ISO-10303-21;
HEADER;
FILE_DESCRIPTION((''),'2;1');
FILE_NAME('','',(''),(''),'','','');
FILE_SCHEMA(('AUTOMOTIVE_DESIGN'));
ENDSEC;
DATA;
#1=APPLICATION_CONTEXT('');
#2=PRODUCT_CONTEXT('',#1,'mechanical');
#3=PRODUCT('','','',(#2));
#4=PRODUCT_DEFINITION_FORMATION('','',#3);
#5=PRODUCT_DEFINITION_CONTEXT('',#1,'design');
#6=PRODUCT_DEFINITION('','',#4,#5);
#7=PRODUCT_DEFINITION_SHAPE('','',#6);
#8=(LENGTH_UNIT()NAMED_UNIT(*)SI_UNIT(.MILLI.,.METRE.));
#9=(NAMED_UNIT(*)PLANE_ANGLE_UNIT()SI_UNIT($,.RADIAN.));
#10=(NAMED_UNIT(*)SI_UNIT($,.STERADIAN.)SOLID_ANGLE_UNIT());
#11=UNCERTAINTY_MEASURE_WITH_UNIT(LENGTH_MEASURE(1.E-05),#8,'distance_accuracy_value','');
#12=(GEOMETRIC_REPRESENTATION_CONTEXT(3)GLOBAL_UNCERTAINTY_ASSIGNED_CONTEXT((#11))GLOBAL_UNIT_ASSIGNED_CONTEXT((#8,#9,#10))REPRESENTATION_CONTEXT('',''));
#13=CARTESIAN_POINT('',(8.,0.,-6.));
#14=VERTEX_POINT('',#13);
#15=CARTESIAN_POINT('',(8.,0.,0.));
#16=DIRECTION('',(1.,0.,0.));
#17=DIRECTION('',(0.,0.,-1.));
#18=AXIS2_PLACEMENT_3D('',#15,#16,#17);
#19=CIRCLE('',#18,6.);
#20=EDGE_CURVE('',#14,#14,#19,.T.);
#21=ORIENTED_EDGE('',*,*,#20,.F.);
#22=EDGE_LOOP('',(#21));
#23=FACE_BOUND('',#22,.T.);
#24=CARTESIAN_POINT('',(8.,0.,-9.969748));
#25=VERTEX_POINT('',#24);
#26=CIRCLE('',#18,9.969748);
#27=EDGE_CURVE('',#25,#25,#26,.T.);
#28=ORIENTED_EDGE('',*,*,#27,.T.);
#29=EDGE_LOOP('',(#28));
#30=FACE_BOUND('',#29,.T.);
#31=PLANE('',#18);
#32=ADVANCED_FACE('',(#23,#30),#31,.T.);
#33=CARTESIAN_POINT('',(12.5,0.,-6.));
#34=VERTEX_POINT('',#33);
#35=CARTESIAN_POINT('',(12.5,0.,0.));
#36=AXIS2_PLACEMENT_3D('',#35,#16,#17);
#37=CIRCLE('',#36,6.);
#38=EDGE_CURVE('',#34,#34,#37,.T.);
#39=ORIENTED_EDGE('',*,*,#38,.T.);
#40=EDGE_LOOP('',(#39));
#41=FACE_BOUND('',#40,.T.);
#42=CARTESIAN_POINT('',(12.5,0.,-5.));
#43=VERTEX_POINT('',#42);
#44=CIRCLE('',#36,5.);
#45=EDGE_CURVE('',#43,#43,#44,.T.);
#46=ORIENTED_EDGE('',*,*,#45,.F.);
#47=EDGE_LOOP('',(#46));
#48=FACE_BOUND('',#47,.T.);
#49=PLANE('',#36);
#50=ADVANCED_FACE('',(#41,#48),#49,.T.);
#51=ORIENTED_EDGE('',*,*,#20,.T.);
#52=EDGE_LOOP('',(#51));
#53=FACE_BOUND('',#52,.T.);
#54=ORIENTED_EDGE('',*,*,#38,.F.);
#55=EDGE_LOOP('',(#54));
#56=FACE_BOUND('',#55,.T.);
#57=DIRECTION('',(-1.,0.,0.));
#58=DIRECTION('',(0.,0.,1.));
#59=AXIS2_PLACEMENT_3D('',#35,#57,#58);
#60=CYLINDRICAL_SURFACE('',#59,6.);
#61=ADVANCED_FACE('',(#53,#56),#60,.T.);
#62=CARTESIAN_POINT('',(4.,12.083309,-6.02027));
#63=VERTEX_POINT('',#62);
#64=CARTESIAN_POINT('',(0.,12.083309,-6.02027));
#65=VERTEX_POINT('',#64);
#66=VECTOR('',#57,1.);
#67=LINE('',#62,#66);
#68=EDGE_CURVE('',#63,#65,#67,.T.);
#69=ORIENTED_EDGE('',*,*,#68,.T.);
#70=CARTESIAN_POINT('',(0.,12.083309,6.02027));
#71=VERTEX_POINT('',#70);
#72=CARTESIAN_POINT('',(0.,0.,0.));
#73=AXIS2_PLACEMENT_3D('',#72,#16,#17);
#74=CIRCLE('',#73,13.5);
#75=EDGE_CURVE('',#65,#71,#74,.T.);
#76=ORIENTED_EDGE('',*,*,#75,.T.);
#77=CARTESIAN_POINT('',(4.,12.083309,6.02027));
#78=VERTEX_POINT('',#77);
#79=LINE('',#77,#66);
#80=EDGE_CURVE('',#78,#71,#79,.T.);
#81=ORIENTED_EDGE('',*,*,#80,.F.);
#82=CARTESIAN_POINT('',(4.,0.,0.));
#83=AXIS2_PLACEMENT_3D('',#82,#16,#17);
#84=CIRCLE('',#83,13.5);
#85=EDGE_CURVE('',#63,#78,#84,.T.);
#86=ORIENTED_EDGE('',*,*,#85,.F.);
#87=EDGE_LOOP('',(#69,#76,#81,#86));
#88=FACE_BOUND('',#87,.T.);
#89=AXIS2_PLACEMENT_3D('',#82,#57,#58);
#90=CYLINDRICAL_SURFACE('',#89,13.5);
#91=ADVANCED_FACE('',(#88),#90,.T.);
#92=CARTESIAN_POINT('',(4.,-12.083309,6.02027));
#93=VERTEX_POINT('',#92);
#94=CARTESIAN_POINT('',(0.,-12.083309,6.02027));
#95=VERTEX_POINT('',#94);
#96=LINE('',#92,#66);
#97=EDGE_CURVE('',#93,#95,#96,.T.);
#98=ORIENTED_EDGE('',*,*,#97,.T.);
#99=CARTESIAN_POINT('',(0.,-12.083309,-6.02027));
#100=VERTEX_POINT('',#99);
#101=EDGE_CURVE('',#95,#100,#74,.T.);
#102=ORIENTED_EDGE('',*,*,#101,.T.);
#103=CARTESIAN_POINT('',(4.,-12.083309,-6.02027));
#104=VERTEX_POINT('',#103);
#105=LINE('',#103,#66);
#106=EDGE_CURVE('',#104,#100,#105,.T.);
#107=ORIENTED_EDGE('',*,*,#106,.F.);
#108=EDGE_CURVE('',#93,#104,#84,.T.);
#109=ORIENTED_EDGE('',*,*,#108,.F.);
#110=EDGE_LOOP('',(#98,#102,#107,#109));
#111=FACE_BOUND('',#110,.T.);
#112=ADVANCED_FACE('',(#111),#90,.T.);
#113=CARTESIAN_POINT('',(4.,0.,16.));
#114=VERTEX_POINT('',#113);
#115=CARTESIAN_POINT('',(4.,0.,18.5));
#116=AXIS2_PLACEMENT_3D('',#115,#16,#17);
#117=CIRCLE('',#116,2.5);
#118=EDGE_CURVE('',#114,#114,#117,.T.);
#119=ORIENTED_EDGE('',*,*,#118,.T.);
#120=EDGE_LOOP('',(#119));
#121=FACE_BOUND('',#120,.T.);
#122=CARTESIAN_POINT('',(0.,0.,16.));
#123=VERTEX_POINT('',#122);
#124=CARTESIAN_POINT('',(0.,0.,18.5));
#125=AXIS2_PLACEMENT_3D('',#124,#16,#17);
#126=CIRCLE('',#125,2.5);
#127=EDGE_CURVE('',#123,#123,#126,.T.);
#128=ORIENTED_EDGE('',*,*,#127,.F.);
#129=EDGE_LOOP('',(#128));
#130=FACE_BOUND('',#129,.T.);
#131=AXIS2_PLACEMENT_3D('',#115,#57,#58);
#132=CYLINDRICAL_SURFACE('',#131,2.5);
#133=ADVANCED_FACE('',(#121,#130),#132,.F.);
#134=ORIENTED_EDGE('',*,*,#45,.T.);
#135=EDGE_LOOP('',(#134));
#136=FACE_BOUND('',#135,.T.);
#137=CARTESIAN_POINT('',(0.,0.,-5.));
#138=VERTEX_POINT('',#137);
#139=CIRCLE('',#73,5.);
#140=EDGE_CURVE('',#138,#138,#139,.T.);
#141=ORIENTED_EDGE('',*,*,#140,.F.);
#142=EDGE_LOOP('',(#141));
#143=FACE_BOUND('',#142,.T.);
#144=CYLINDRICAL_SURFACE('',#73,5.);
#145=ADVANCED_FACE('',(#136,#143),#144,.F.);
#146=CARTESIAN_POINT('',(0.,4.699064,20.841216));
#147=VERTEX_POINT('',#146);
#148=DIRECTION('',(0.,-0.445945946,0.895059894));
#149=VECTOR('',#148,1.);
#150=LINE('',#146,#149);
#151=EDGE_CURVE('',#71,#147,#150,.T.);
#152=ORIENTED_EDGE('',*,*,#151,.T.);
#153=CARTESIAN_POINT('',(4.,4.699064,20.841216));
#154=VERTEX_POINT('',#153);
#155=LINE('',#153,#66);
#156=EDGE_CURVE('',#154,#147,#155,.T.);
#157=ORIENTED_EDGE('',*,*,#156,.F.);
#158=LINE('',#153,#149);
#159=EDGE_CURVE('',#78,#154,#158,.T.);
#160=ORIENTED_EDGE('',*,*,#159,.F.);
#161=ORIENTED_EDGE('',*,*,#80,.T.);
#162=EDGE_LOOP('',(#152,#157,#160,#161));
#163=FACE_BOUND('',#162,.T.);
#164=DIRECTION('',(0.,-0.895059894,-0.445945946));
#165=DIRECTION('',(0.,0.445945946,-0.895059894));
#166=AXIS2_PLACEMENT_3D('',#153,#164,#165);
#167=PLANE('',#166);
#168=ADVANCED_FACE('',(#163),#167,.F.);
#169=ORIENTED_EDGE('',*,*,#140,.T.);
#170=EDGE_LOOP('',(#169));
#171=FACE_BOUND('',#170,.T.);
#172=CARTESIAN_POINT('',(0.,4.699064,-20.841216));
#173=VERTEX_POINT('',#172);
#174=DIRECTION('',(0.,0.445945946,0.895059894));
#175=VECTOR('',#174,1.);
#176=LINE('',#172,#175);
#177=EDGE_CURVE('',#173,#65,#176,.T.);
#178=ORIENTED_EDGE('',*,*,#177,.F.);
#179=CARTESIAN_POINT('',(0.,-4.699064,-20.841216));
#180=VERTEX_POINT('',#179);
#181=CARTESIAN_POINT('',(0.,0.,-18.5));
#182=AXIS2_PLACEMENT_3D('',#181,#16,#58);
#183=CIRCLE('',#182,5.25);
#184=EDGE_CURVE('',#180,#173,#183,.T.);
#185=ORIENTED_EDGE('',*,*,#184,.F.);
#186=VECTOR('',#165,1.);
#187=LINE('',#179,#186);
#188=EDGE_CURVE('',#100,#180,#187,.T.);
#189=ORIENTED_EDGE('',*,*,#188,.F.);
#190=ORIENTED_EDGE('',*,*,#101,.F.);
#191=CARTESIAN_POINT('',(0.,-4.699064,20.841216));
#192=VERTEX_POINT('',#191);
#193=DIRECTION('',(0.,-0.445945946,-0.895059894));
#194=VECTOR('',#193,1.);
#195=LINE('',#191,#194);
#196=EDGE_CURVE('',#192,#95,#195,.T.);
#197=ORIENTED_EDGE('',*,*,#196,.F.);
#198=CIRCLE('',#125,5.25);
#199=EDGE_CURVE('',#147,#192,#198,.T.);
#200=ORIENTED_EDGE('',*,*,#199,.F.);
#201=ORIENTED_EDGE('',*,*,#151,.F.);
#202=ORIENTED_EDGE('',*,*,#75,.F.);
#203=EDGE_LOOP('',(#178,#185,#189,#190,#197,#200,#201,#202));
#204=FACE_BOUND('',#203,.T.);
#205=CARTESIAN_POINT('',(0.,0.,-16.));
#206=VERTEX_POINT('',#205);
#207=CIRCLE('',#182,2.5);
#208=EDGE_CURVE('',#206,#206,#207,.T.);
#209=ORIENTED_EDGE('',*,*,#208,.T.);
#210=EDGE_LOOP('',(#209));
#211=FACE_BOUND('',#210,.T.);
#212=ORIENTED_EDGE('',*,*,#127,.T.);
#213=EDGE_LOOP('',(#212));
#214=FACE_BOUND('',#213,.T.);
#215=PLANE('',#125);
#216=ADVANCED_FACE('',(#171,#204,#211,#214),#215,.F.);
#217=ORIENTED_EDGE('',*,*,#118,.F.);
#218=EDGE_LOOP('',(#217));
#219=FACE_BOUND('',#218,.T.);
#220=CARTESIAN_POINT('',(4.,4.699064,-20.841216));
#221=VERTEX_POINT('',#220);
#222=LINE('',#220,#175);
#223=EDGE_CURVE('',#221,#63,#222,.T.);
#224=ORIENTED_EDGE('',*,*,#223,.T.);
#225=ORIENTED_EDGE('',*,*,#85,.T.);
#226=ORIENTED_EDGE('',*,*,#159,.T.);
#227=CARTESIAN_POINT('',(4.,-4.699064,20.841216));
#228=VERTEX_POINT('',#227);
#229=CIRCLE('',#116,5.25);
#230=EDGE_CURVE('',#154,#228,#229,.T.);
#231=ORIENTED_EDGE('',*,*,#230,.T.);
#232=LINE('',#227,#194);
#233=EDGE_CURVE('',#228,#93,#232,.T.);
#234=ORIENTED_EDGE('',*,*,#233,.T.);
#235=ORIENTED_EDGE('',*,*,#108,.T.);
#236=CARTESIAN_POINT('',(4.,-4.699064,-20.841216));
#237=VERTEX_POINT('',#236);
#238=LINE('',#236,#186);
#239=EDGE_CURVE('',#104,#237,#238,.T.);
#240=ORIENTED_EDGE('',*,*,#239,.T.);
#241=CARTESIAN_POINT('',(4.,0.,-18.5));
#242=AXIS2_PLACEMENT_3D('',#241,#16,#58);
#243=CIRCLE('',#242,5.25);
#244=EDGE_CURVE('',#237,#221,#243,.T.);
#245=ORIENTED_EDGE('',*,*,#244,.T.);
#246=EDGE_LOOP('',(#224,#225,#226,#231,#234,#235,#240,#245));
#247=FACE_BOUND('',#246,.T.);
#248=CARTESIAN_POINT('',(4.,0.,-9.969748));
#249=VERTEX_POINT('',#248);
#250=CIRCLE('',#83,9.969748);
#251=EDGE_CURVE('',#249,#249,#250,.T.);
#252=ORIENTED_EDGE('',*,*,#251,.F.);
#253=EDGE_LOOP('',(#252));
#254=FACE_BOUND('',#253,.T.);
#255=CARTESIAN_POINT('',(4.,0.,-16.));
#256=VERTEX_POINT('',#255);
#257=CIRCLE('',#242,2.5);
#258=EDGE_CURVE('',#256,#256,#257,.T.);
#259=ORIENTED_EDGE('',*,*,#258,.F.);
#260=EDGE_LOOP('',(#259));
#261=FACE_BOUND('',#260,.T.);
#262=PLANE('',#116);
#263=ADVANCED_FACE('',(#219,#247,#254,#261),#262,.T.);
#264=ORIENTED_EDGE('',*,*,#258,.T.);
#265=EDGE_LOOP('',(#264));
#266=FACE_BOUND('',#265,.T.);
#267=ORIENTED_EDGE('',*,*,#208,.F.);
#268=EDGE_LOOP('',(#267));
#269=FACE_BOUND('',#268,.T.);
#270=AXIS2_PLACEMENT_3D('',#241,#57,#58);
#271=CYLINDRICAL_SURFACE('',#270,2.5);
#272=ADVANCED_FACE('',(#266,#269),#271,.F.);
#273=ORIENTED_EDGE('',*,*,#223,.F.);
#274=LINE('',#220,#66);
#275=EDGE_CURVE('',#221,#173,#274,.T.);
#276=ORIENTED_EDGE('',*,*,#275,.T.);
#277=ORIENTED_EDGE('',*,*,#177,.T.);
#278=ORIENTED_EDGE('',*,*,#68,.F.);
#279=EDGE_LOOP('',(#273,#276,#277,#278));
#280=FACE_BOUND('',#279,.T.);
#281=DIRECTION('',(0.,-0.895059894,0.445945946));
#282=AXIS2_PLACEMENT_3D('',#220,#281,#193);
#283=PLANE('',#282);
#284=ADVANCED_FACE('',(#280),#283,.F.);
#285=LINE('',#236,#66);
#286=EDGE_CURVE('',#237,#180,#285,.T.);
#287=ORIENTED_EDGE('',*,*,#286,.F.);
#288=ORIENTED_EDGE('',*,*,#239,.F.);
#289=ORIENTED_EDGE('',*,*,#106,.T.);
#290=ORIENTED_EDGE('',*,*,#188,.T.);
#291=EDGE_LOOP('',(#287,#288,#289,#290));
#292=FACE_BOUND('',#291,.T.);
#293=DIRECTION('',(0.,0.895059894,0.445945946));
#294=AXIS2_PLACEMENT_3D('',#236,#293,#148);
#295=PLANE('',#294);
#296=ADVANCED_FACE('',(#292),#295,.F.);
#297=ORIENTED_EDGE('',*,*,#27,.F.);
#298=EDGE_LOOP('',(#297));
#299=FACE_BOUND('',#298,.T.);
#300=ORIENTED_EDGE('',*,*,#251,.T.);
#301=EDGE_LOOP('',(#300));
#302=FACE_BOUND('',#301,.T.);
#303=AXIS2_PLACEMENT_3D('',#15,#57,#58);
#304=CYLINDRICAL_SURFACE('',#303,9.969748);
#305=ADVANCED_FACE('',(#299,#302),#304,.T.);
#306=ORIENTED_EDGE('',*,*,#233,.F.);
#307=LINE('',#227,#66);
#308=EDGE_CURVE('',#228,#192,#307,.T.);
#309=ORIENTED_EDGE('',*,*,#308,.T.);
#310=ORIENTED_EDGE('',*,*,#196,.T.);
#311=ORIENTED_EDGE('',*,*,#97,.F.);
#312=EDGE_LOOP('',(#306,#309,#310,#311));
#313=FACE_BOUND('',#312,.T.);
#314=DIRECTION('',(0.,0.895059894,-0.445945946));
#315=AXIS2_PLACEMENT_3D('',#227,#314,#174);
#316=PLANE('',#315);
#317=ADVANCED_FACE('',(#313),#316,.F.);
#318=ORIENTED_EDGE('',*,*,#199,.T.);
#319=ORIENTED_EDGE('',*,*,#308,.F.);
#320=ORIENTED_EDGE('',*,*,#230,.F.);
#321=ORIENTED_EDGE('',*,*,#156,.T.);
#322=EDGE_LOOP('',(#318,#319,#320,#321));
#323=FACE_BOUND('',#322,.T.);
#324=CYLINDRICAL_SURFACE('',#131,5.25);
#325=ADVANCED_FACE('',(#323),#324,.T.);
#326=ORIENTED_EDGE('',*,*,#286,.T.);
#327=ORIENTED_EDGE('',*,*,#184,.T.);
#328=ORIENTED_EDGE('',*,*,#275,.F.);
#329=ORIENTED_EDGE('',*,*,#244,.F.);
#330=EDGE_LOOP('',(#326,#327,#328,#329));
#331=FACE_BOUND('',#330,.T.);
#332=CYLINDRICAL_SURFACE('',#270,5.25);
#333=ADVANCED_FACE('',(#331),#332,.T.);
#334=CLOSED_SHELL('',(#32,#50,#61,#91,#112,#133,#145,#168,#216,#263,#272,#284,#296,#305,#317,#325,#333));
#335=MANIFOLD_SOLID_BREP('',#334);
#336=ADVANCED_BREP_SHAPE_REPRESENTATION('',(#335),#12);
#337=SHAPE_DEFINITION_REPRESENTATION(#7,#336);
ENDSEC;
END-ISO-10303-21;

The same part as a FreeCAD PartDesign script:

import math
import FreeCAD as App
import Part
import Sketcher
from FreeCAD import Vector

doc = App.newDocument("Part")
body = doc.addObject("PartDesign::Body", "Body")

sketch1 = doc.addObject("Sketcher::SketchObject", "Sketch")
body.addObject(sketch1)
sketch1.AttachmentSupport = (doc.YZ_Plane, [""])
sketch1.MapMode = "FlatFace"
sketch1.addGeometry(Part.LineSegment(Vector(12.1, 6, 0), Vector(4.7, 20.8, 0)), False)
sketch1.addGeometry(Part.ArcOfCircle(Part.Circle(Vector(0, 18.5, 0), Vector(0, 0, 1), 5.2), math.radians(26), math.radians(154)), False)
sketch1.addGeometry(Part.LineSegment(Vector(-4.7, 20.8, 0), Vector(-12.1, 6, 0)), False)
sketch1.addGeometry(Part.ArcOfCircle(Part.Circle(Vector(0, 0, 0), Vector(0, 0, 1), 13.5), math.radians(154), math.radians(206)), False)
sketch1.addGeometry(Part.LineSegment(Vector(-12.1, -6, 0), Vector(-4.7, -20.8, 0)), False)
sketch1.addGeometry(Part.ArcOfCircle(Part.Circle(Vector(0, -18.5, 0), Vector(0, 0, 1), 5.2), math.radians(-154), math.radians(-26)), False)
sketch1.addGeometry(Part.LineSegment(Vector(4.7, -20.8, 0), Vector(12.1, -6, 0)), False)
sketch1.addGeometry(Part.ArcOfCircle(Part.Circle(Vector(0, 0, 0), Vector(0, 0, 1), 13.5), math.radians(-26), math.radians(26)), False)
sketch1.addGeometry(Part.Circle(Vector(0, -18.5, 0), Vector(0, 0, 1), 2.5), False)
sketch1.addGeometry(Part.Circle(Vector(0, 18.5, 0), Vector(0, 0, 1), 2.5), False)
sketch1.addConstraint(Sketcher.Constraint("Tangent", 0, 2, 1, 1))
sketch1.addConstraint(Sketcher.Constraint("Tangent", 1, 2, 2, 1))
sketch1.addConstraint(Sketcher.Constraint("Tangent", 2, 2, 3, 1))
sketch1.addConstraint(Sketcher.Constraint("Tangent", 3, 2, 4, 1))
sketch1.addConstraint(Sketcher.Constraint("Tangent", 4, 2, 5, 1))
sketch1.addConstraint(Sketcher.Constraint("Tangent", 5, 2, 6, 1))
sketch1.addConstraint(Sketcher.Constraint("Tangent", 6, 2, 7, 1))
sketch1.addConstraint(Sketcher.Constraint("Tangent", 7, 2, 0, 1))
sketch1.addConstraint(Sketcher.Constraint("Coincident", 3, 3, -1, 1))
sketch1.addConstraint(Sketcher.Constraint("Coincident", 7, 3, -1, 1))
sketch1.addConstraint(Sketcher.Constraint("Coincident", 8, 3, 5, 3))
sketch1.addConstraint(Sketcher.Constraint("Coincident", 9, 3, 1, 3))
sketch1.addConstraint(Sketcher.Constraint("Equal", 1, 5))
sketch1.addConstraint(Sketcher.Constraint("Equal", 3, 7))
sketch1.addConstraint(Sketcher.Constraint("Equal", 8, 9))
sketch1.addConstraint(Sketcher.Constraint("Symmetric", 1, 3, 5, 3, -1, 1))
sketch1.addConstraint(Sketcher.Constraint("PointOnObject", 1, 3, -2))
sketch1.addConstraint(Sketcher.Constraint("Diameter", 8, 5.0))
sketch1.addConstraint(Sketcher.Constraint("Radius", 3, 13.5))
sketch1.addConstraint(Sketcher.Constraint("Radius", 1, 5.25))
sketch1.addConstraint(Sketcher.Constraint("DistanceY", 5, 3, 1, 3, 37.0))
pad1 = doc.addObject("PartDesign::Pad", "Pad")
body.addObject(pad1)
pad1.Profile = sketch1
pad1.Length = 4

sketch2 = doc.addObject("Sketcher::SketchObject", "Sketch001")
body.addObject(sketch2)
sketch2.AttachmentSupport = (doc.YZ_Plane, [""])
sketch2.MapMode = "FlatFace"
sketch2.AttachmentOffset = App.Placement(Vector(0, 0, 4), App.Rotation())
sketch2.addGeometry(Part.Circle(Vector(0, 0, 0), Vector(0, 0, 1), 10), False)
sketch2.addConstraint(Sketcher.Constraint("Coincident", 0, 3, -1, 1))
sketch2.addConstraint(Sketcher.Constraint("Diameter", 0, 19.939495))
pad2 = doc.addObject("PartDesign::Pad", "Pad001")
body.addObject(pad2)
pad2.Profile = sketch2
pad2.Length = 4

sketch3 = doc.addObject("Sketcher::SketchObject", "Sketch002")
body.addObject(sketch3)
sketch3.AttachmentSupport = (doc.YZ_Plane, [""])
sketch3.MapMode = "FlatFace"
sketch3.AttachmentOffset = App.Placement(Vector(0, 0, 8), App.Rotation())
sketch3.addGeometry(Part.Circle(Vector(0, 0, 0), Vector(0, 0, 1), 6), False)
sketch3.addConstraint(Sketcher.Constraint("Coincident", 0, 3, -1, 1))
sketch3.addConstraint(Sketcher.Constraint("Diameter", 0, 12.0))
pad3 = doc.addObject("PartDesign::Pad", "Pad002")
body.addObject(pad3)
pad3.Profile = sketch3
pad3.Length = 4.5

sketch4 = doc.addObject("Sketcher::SketchObject", "Sketch003")
body.addObject(sketch4)
sketch4.AttachmentSupport = (doc.YZ_Plane, [""])
sketch4.MapMode = "FlatFace"
sketch4.AttachmentOffset = App.Placement(Vector(0, 0, 12.5), App.Rotation())
sketch4.addGeometry(Part.Circle(Vector(0, 0, 0), Vector(0, 0, 1), 5), False)
sketch4.addConstraint(Sketcher.Constraint("Coincident", 0, 3, -1, 1))
sketch4.addConstraint(Sketcher.Constraint("Diameter", 0, 10.0))
pocket1 = doc.addObject("PartDesign::Pocket", "Pocket")
body.addObject(pocket1)
pocket1.Profile = sketch4
pocket1.Type = "ThroughAll"

doc.recompute()
